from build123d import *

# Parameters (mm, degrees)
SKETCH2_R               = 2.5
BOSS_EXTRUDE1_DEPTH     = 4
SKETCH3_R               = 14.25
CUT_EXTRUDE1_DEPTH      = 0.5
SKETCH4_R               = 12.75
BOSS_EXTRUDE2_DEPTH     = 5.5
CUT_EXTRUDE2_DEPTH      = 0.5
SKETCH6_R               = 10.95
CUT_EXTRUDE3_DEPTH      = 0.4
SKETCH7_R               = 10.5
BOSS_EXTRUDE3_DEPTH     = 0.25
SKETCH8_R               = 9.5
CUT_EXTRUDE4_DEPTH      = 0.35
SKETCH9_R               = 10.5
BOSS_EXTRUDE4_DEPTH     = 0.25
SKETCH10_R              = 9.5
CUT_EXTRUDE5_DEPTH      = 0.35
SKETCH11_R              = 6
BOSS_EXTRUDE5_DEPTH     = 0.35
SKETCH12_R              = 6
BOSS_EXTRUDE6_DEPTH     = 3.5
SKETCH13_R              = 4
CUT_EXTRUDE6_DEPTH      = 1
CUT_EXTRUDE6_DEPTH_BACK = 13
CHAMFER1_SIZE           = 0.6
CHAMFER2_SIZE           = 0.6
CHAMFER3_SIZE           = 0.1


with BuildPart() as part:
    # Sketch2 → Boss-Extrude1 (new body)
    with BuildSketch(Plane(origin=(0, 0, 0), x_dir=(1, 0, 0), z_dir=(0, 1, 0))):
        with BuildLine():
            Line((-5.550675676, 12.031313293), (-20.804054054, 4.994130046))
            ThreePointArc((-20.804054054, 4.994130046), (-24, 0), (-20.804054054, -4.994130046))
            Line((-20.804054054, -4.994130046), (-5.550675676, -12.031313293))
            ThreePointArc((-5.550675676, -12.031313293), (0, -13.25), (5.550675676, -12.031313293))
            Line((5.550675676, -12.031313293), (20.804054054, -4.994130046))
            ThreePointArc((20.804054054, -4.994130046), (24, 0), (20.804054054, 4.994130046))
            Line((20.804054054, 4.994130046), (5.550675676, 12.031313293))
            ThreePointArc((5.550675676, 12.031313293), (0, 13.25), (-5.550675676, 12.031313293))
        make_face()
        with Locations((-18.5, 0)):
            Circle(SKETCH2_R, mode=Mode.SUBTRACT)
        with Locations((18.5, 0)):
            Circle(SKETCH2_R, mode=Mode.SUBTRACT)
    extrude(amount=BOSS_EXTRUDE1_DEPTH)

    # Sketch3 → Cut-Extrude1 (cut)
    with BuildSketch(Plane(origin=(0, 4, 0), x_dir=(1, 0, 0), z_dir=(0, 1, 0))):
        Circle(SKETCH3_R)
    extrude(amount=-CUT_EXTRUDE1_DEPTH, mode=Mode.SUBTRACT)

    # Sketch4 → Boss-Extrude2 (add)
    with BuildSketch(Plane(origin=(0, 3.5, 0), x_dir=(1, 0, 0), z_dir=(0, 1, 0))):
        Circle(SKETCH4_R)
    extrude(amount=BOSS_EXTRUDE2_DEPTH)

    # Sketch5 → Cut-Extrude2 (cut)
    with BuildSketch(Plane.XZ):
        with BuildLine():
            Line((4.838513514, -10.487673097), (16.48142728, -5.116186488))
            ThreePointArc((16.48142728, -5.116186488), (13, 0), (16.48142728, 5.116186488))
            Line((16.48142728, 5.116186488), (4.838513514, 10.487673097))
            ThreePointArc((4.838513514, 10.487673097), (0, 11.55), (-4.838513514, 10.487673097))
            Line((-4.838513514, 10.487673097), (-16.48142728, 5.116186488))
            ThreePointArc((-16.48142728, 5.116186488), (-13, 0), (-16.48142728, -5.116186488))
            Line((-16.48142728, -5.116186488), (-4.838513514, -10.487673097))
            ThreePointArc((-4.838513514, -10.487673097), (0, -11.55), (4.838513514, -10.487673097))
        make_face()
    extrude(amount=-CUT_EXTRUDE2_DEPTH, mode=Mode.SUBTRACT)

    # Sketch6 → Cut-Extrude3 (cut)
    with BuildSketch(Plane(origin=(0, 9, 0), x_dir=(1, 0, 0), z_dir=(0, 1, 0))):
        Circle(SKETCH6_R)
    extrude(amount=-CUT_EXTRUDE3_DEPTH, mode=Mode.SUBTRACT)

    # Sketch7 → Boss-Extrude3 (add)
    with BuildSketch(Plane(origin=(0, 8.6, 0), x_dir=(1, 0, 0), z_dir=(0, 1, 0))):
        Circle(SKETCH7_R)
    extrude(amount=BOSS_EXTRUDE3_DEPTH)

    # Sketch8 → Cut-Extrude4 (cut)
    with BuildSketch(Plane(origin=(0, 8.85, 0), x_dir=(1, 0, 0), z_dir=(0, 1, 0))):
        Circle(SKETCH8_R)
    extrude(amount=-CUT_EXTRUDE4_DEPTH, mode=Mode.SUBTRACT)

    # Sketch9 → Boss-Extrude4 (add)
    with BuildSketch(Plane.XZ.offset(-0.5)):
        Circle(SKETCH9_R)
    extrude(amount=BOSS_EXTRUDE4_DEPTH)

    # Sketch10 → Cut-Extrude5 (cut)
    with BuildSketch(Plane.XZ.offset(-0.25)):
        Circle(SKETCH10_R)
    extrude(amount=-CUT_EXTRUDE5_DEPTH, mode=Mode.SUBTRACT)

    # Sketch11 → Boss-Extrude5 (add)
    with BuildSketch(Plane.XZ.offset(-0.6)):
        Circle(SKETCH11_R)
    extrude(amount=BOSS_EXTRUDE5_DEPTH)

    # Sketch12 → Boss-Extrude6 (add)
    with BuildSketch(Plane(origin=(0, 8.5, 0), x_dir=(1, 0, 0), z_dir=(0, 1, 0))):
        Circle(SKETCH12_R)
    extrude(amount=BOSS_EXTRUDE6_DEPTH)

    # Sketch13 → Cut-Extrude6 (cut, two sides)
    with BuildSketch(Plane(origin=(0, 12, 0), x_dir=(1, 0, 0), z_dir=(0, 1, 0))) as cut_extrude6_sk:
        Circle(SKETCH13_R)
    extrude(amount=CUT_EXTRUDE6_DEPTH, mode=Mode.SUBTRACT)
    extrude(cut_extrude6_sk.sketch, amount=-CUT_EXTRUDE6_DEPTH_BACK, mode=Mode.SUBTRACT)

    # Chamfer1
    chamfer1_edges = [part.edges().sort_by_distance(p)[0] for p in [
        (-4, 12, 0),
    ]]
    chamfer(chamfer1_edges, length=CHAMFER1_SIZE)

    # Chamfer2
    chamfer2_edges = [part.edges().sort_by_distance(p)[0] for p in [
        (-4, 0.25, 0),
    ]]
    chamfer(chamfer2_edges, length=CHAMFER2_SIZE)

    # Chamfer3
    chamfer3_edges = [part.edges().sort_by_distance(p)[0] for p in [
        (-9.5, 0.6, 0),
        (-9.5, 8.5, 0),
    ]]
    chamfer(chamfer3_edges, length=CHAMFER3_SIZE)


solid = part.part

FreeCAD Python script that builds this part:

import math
import FreeCAD as App
import Part
import Sketcher


def edges_at(feature, points):
    """Names of the edges that pass closest to the given points."""
    edges = feature.Shape.Edges
    near = lambda p: min(range(len(edges)), key=lambda i: edges[i].distToShape(Part.Vertex(*p))[0])
    return sorted({f"Edge{near(p) + 1}" for p in points})

doc = App.newDocument("Part")
body = doc.addObject("PartDesign::Body", "Body")

sketch1 = body.newObject("Sketcher::SketchObject", "Sketch")
sketch1.AttachmentSupport = (doc.getObject("XZ_Plane"), [""])
sketch1.MapMode = "FlatFace"
sketch1.addGeometry([
    Part.LineSegment(App.Vector(-5.6, -12, 0), App.Vector(-20.8, -5, 0)),
    Part.ArcOfCircle(Part.Circle(App.Vector(-18.5, 0, 0), App.Vector(0, 0, 1), 5.5), math.radians(115), math.radians(245)),
    Part.LineSegment(App.Vector(-20.8, 5, 0), App.Vector(-5.6, 12, 0)),
    Part.ArcOfCircle(Part.Circle(App.Vector(0, 0, 0), App.Vector(0, 0, 1), 13.3), math.radians(65), math.radians(115)),
    Part.LineSegment(App.Vector(5.6, 12, 0), App.Vector(20.8, 5, 0)),
    Part.ArcOfCircle(Part.Circle(App.Vector(18.5, 0, 0), App.Vector(0, 0, 1), 5.5), math.radians(-65), math.radians(65)),
    Part.LineSegment(App.Vector(20.8, -5, 0), App.Vector(5.6, -12, 0)),
    Part.ArcOfCircle(Part.Circle(App.Vector(0, 0, 0), App.Vector(0, 0, 1), 13.3), math.radians(-115), math.radians(-65)),
    Part.Circle(App.Vector(-18.5, 0, 0), App.Vector(0, 0, 1), 2.5),
    Part.Circle(App.Vector(18.5, 0, 0), App.Vector(0, 0, 1), 2.5),
], False)
sketch1.addConstraint([
    Sketcher.Constraint("Tangent", 0, 2, 1, 2),
    Sketcher.Constraint("Tangent", 1, 1, 2, 1),
    Sketcher.Constraint("Tangent", 2, 2, 3, 2),
    Sketcher.Constraint("Tangent", 3, 1, 4, 1),
    Sketcher.Constraint("Tangent", 4, 2, 5, 2),
    Sketcher.Constraint("Tangent", 5, 1, 6, 1),
    Sketcher.Constraint("Tangent", 6, 2, 7, 2),
    Sketcher.Constraint("Tangent", 7, 1, 0, 1),
    Sketcher.Constraint("Coincident", 3, 3, -1, 1),
    Sketcher.Constraint("Coincident", 7, 3, -1, 1),
    Sketcher.Constraint("Coincident", 8, 3, 1, 3),
    Sketcher.Constraint("Coincident", 9, 3, 5, 3),
    Sketcher.Constraint("Equal", 1, 5),
    Sketcher.Constraint("Equal", 3, 7),
    Sketcher.Constraint("Equal", 8, 9),
    Sketcher.Constraint("Symmetric", 1, 3, 5, 3, -1, 1),
    Sketcher.Constraint("PointOnObject", 1, 3, -1),
    Sketcher.Constraint("Diameter", 8, 5.0),
    Sketcher.Constraint("Radius", 1, 5.5),
    Sketcher.Constraint("Radius", 3, 13.25),
    Sketcher.Constraint("DistanceX", 1, 3, 5, 3, 37.0),
])
pad1 = body.newObject("PartDesign::Pad", "Pad")
pad1.Profile = sketch1
pad1.Length = 4
pad1.Reversed = True

sketch2 = body.newObject("Sketcher::SketchObject", "Sketch001")
sketch2.AttachmentSupport = (doc.getObject("XZ_Plane"), [""])
sketch2.MapMode = "FlatFace"
sketch2.AttachmentOffset = App.Placement(App.Vector(0, 0, -4), App.Rotation())
sketch2.addGeometry(Part.Circle(App.Vector(0, 0, 0), App.Vector(0, 0, 1), 14), False)
sketch2.addConstraint([
    Sketcher.Constraint("Coincident", 0, 3, -1, 1),
    Sketcher.Constraint("Diameter", 0, 28.5),
])
pocket1 = body.newObject("PartDesign::Pocket", "Pocket")
pocket1.Profile = sketch2
pocket1.Length = 0.5
pocket1.Reversed = True

sketch3 = body.newObject("Sketcher::SketchObject", "Sketch002")
sketch3.AttachmentSupport = (doc.getObject("XZ_Plane"), [""])
sketch3.MapMode = "FlatFace"
sketch3.AttachmentOffset = App.Placement(App.Vector(0, 0, -3.5), App.Rotation())
sketch3.addGeometry(Part.Circle(App.Vector(0, 0, 0), App.Vector(0, 0, 1), 13), False)
sketch3.addConstraint([
    Sketcher.Constraint("Coincident", 0, 3, -1, 1),
    Sketcher.Constraint("Diameter", 0, 25.5),
])
pad2 = body.newObject("PartDesign::Pad", "Pad001")
pad2.Profile = sketch3
pad2.Length = 5.5
pad2.Reversed = True

sketch4 = body.newObject("Sketcher::SketchObject", "Sketch003")
sketch4.AttachmentSupport = (doc.getObject("XZ_Plane"), [""])
sketch4.MapMode = "FlatFace"
sketch4.addGeometry([
    Part.LineSegment(App.Vector(5, -10, 0), App.Vector(16, -5, 0)),
    Part.ArcOfCircle(Part.Circle(App.Vector(19, 0, 0), App.Vector(0, 0, 1), 6), math.radians(112), math.radians(248)),
    Part.LineSegment(App.Vector(16, 5, 0), App.Vector(5, 10, 0)),
    Part.ArcOfCircle(Part.Circle(App.Vector(0, 0, 0), App.Vector(0, 0, 1), 12), math.radians(65), math.radians(115)),
    Part.LineSegment(App.Vector(-5, 10, 0), App.Vector(-16, 5, 0)),
    Part.ArcOfCircle(Part.Circle(App.Vector(-19, 0, 0), App.Vector(0, 0, 1), 6), math.radians(-68), math.radians(68)),
    Part.LineSegment(App.Vector(-16, -5, 0), App.Vector(-5, -10, 0)),
    Part.ArcOfCircle(Part.Circle(App.Vector(0, 0, 0), App.Vector(0, 0, 1), 12), math.radians(-115), math.radians(-65)),
], False)
sketch4.addConstraint([
    Sketcher.Constraint("Coincident", 0, 2, 1, 2),
    Sketcher.Constraint("Coincident", 1, 1, 2, 1),
    Sketcher.Constraint("Tangent", 2, 2, 3, 1),
    Sketcher.Constraint("Tangent", 3, 2, 4, 1),
    Sketcher.Constraint("Coincident", 4, 2, 5, 2),
    Sketcher.Constraint("Coincident", 5, 1, 6, 1),
    Sketcher.Constraint("Tangent", 6, 2, 7, 1),
    Sketcher.Constraint("Tangent", 7, 2, 0, 1),
    Sketcher.Constraint("Coincident", 3, 3, -1, 1),
    Sketcher.Constraint("Coincident", 7, 3, -1, 1),
    Sketcher.Constraint("Equal", 1, 5),
    Sketcher.Constraint("Equal", 3, 7),
    Sketcher.Constraint("Symmetric", 1, 3, 5, 3, -1, 1),
    Sketcher.Constraint("Symmetric", 1, 1, 4, 2, -2),
    Sketcher.Constraint("Parallel", 0, 4),
    Sketcher.Constraint("Parallel", 2, 6),
    Sketcher.Constraint("Radius", 1, 5.5),
    Sketcher.Constraint("Radius", 3, 11.55),
    Sketcher.Constraint("DistanceX", 5, 3, 1, 3, 37.0),
    Sketcher.Constraint("Distance", 0, 12.822258),
])
pocket2 = body.newObject("PartDesign::Pocket", "Pocket001")
pocket2.Profile = sketch4
pocket2.Length = 0.5

sketch5 = body.newObject("Sketcher::SketchObject", "Sketch004")
sketch5.AttachmentSupport = (doc.getObject("XZ_Plane"), [""])
sketch5.MapMode = "FlatFace"
sketch5.AttachmentOffset = App.Placement(App.Vector(0, 0, -9), App.Rotation())
sketch5.addGeometry(Part.Circle(App.Vector(0, 0, 0), App.Vector(0, 0, 1), 11), False)
sketch5.addConstraint([
    Sketcher.Constraint("Coincident", 0, 3, -1, 1),
    Sketcher.Constraint("Diameter", 0, 21.9),
])
pocket3 = body.newObject("PartDesign::Pocket", "Pocket002")
pocket3.Profile = sketch5
pocket3.Length = 0.4
pocket3.Reversed = True

sketch6 = body.newObject("Sketcher::SketchObject", "Sketch005")
sketch6.AttachmentSupport = (doc.getObject("XZ_Plane"), [""])
sketch6.MapMode = "FlatFace"
sketch6.AttachmentOffset = App.Placement(App.Vector(0, 0, -8.6), App.Rotation())
sketch6.addGeometry(Part.Circle(App.Vector(0, 0, 0), App.Vector(0, 0, 1), 10), False)
sketch6.addConstraint([
    Sketcher.Constraint("Coincident", 0, 3, -1, 1),
    Sketcher.Constraint("Diameter", 0, 21.0),
])
pad3 = body.newObject("PartDesign::Pad", "Pad002")
pad3.Profile = sketch6
pad3.Length = 0.25
pad3.Reversed = True

sketch7 = body.newObject("Sketcher::SketchObject", "Sketch006")
sketch7.AttachmentSupport = (doc.getObject("XZ_Plane"), [""])
sketch7.MapMode = "FlatFace"
sketch7.AttachmentOffset = App.Placement(App.Vector(0, 0, -8.85), App.Rotation())
sketch7.addGeometry(Part.Circle(App.Vector(0, 0, 0), App.Vector(0, 0, 1), 10), False)
sketch7.addConstraint([
    Sketcher.Constraint("Coincident", 0, 3, -1, 1),
    Sketcher.Constraint("Diameter", 0, 19.0),
])
pocket4 = body.newObject("PartDesign::Pocket", "Pocket003")
pocket4.Profile = sketch7
pocket4.Length = 0.35
pocket4.Reversed = True

sketch8 = body.newObject("Sketcher::SketchObject", "Sketch007")
sketch8.AttachmentSupport = (doc.getObject("XZ_Plane"), [""])
sketch8.MapMode = "FlatFace"
sketch8.AttachmentOffset = App.Placement(App.Vector(0, 0, -0.5), App.Rotation())
sketch8.addGeometry(Part.Circle(App.Vector(0, 0, 0), App.Vector(0, 0, 1), 10), False)
sketch8.addConstraint([
    Sketcher.Constraint("Coincident", 0, 3, -1, 1),
    Sketcher.Constraint("Diameter", 0, 21.0),
])
pad4 = body.newObject("PartDesign::Pad", "Pad003")
pad4.Profile = sketch8
pad4.Length = 0.25

sketch9 = body.newObject("Sketcher::SketchObject", "Sketch008")
sketch9.AttachmentSupport = (doc.getObject("XZ_Plane"), [""])
sketch9.MapMode = "FlatFace"
sketch9.AttachmentOffset = App.Placement(App.Vector(0, 0, -0.25), App.Rotation())
sketch9.addGeometry(Part.Circle(App.Vector(0, 0, 0), App.Vector(0, 0, 1), 10), False)
sketch9.addConstraint([
    Sketcher.Constraint("Coincident", 0, 3, -1, 1),
    Sketcher.Constraint("Diameter", 0, 19.0),
])
pocket5 = body.newObject("PartDesign::Pocket", "Pocket004")
pocket5.Profile = sketch9
pocket5.Length = 0.35

sketch10 = body.newObject("Sketcher::SketchObject", "Sketch009")
sketch10.AttachmentSupport = (doc.getObject("XZ_Plane"), [""])
sketch10.MapMode = "FlatFace"
sketch10.AttachmentOffset = App.Placement(App.Vector(0, 0, -0.6), App.Rotation())
sketch10.addGeometry(Part.Circle(App.Vector(0, 0, 0), App.Vector(0, 0, 1), 6), False)
sketch10.addConstraint([
    Sketcher.Constraint("Coincident", 0, 3, -1, 1),
    Sketcher.Constraint("Diameter", 0, 12.0),
])
pad5 = body.newObject("PartDesign::Pad", "Pad004")
pad5.Profile = sketch10
pad5.Length = 0.35

sketch11 = body.newObject("Sketcher::SketchObject", "Sketch010")
sketch11.AttachmentSupport = (doc.getObject("XZ_Plane"), [""])
sketch11.MapMode = "FlatFace"
sketch11.AttachmentOffset = App.Placement(App.Vector(0, 0, -8.5), App.Rotation())
sketch11.addGeometry(Part.Circle(App.Vector(0, 0, 0), App.Vector(0, 0, 1), 6), False)
sketch11.addConstraint([
    Sketcher.Constraint("Coincident", 0, 3, -1, 1),
    Sketcher.Constraint("Diameter", 0, 12.0),
])
pad6 = body.newObject("PartDesign::Pad", "Pad005")
pad6.Profile = sketch11
pad6.Length = 3.5
pad6.Reversed = True

sketch12 = body.newObject("Sketcher::SketchObject", "Sketch011")
sketch12.AttachmentSupport = (doc.getObject("XZ_Plane"), [""])
sketch12.MapMode = "FlatFace"
sketch12.AttachmentOffset = App.Placement(App.Vector(0, 0, -12), App.Rotation())
sketch12.addGeometry(Part.Circle(App.Vector(0, 0, 0), App.Vector(0, 0, 1), 4), False)
sketch12.addConstraint([
    Sketcher.Constraint("Coincident", 0, 3, -1, 1),
    Sketcher.Constraint("Diameter", 0, 8.0),
])
pocket6 = body.newObject("PartDesign::Pocket", "Pocket005")
pocket6.Profile = sketch12
pocket6.Type = "ThroughAll"
pocket6.Midplane = True
doc.recompute()

chamfer = body.newObject("PartDesign::Chamfer", "Chamfer")
chamfer.Base = (pocket6, edges_at(pocket6, [(-4, 12, 0)]))
chamfer.Size = 0.6
doc.recompute()

chamfer2 = body.newObject("PartDesign::Chamfer", "Chamfer001")
chamfer2.Base = (chamfer, edges_at(chamfer, [(-4, 0.25, 0)]))
chamfer2.Size = 0.6
doc.recompute()

chamfer3 = body.newObject("PartDesign::Chamfer", "Chamfer002")
chamfer3.Base = (chamfer2, edges_at(chamfer2, [(-9.5, 0.6, 0), (-9.5, 8.5, 0)]))
chamfer3.Size = 0.1

doc.recompute()
